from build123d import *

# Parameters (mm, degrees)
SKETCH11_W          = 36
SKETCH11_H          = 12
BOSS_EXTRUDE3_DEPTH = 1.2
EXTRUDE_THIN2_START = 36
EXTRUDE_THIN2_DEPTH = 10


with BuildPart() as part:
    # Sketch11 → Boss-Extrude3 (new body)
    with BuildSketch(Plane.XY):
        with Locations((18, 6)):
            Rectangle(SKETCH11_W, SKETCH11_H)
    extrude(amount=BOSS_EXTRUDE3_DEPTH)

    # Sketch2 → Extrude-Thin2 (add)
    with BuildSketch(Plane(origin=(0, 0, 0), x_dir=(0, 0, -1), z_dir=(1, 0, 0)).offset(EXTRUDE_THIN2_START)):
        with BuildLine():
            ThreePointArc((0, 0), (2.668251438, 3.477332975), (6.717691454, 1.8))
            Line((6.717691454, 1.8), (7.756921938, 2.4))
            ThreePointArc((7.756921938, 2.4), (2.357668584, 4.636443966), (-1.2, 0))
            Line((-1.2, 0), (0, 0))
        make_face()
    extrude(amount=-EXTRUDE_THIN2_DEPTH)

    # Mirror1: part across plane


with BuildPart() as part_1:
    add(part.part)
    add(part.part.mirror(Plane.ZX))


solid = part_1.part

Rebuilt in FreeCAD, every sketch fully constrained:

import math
import FreeCAD as App
import Part
import Sketcher
Q = App.Units.Quantity


def add_polygon(sketch, points):
    """Adds a closed chain of lines whose ends are joined by coincident constraints."""
    first, n = sketch.GeometryCount, len(points)
    for a, b in zip(points, points[1:] + points[:1]):
        sketch.addGeometry(Part.LineSegment(App.Vector(*a, 0), App.Vector(*b, 0)), False)
    for i in range(n):
        sketch.addConstraint(Sketcher.Constraint("Coincident", first + i, 2, first + (i + 1) % n, 1))

doc = App.newDocument("Part")
params = doc.addObject("Spreadsheet::Sheet", "Params")
for row, (alias, value) in enumerate([
    ("sketch1_width", "36 mm"),
    ("sketch1_height", "12 mm"),
    ("pad1_length", "1.2 mm"),
    ("sketch2_radius", "3.6 mm"),
    ("sketch2_radius2", "4.8 mm"),
    ("pad2_length", "10 mm"),
], start=1):
    params.set(f"A{row}", alias)
    params.set(f"B{row}", "=" + value)
    params.setAlias(f"B{row}", alias)

body = doc.addObject("PartDesign::Body", "Body")

sketch1 = doc.addObject("Sketcher::SketchObject", "Sketch")
body.addObject(sketch1)
sketch1.AttachmentSupport = (doc.XY_Plane, [""])
sketch1.MapMode = "FlatFace"
add_polygon(sketch1, [(0, 12), (0, 0), (36, 0), (36, 12)])
sketch1.addConstraint([
    Sketcher.Constraint("Vertical", 0),
    Sketcher.Constraint("Horizontal", 1),
    Sketcher.Constraint("Vertical", 2),
    Sketcher.Constraint("Horizontal", 3),
    Sketcher.Constraint("Coincident", 0, 2, -1, 1),
    Sketcher.Constraint("DistanceX", 1, 1, 1, 2, Q("36 mm")),
    Sketcher.Constraint("DistanceY", 0, 2, 0, 1, Q("12 mm")),
])
sketch1.setExpression("Constraints[9]", "Params.sketch1_width")
sketch1.setExpression("Constraints[10]", "Params.sketch1_height")
pad1 = doc.addObject("PartDesign::Pad", "Pad")
body.addObject(pad1)
pad1.Profile = sketch1
pad1.setExpression("Length", "Params.pad1_length")

sketch2 = doc.addObject("Sketcher::SketchObject", "Sketch001")
body.addObject(sketch2)
sketch2.AttachmentSupport = (doc.YZ_Plane, [""])
sketch2.MapMode = "FlatFace"
sketch2.AttachmentOffset = App.Placement(App.Vector(0, 0, 36), App.Rotation())
sketch2.addGeometry([
    Part.ArcOfCircle(Part.Circle(App.Vector(0, -3.6, 0), App.Vector(0, 0, 1), 3.6), math.radians(-60), math.radians(90)),
    Part.LineSegment(App.Vector(1.8, -6.7, 0), App.Vector(2.4, -7.8, 0)),
    Part.ArcOfCircle(Part.Circle(App.Vector(0, -3.6, 0), App.Vector(0, 0, 1), 4.8), math.radians(-60), math.radians(90)),
    Part.LineSegment(App.Vector(0, 1.2, 0), App.Vector(0, 0, 0)),
], False)
sketch2.addConstraint([
    Sketcher.Constraint("Coincident", 0, 1, 1, 1),
    Sketcher.Constraint("Coincident", 1, 2, 2, 1),
    Sketcher.Constraint("Coincident", 2, 2, 3, 1),
    Sketcher.Constraint("Coincident", 3, 2, 0, 2),
    Sketcher.Constraint("Vertical", 3),
    Sketcher.Constraint("Coincident", 3, 2, -1, 1),
    Sketcher.Constraint("Coincident", 2, 3, 0, 3),
    Sketcher.Constraint("PointOnObject", 0, 3, -2),
    Sketcher.Constraint("Radius", 0, Q("3.6 mm")),
    Sketcher.Constraint("Radius", 2, Q("4.8 mm")),
    Sketcher.Constraint("Angle", 1, Q("-60 deg")),
    Sketcher.Constraint("DistanceX", -1, 1, 0, 1, Q("1.8 mm")),
])
sketch2.setExpression("Constraints[8]", "Params.sketch2_radius")
sketch2.setExpression("Constraints[9]", "Params.sketch2_radius2")
pad2 = doc.addObject("PartDesign::Pad", "Pad001")
body.addObject(pad2)
pad2.Profile = sketch2
pad2.setExpression("Length", "Params.pad2_length")
pad2.Reversed = True
body2 = doc.addObject("PartDesign::Body", "Body001")
doc.recompute()

body2.BaseFeature = body
doc.recompute()

mirroring = doc.addObject("Part::Mirroring", "Mirroring")
mirroring.Source = body
mirroring.Base = App.Vector(0, 0, 0)
mirroring.Normal = App.Vector(0, 1, 0)
body3 = doc.addObject("PartDesign::Body", "Body002")
body3.BaseFeature = mirroring
boolean = doc.addObject("PartDesign::Boolean", "Boolean")
body2.addObject(boolean)
boolean.Type = "Fuse"
boolean.addObjects([body3])
doc.recompute()
mirroring.Visibility = False

doc.recompute()
